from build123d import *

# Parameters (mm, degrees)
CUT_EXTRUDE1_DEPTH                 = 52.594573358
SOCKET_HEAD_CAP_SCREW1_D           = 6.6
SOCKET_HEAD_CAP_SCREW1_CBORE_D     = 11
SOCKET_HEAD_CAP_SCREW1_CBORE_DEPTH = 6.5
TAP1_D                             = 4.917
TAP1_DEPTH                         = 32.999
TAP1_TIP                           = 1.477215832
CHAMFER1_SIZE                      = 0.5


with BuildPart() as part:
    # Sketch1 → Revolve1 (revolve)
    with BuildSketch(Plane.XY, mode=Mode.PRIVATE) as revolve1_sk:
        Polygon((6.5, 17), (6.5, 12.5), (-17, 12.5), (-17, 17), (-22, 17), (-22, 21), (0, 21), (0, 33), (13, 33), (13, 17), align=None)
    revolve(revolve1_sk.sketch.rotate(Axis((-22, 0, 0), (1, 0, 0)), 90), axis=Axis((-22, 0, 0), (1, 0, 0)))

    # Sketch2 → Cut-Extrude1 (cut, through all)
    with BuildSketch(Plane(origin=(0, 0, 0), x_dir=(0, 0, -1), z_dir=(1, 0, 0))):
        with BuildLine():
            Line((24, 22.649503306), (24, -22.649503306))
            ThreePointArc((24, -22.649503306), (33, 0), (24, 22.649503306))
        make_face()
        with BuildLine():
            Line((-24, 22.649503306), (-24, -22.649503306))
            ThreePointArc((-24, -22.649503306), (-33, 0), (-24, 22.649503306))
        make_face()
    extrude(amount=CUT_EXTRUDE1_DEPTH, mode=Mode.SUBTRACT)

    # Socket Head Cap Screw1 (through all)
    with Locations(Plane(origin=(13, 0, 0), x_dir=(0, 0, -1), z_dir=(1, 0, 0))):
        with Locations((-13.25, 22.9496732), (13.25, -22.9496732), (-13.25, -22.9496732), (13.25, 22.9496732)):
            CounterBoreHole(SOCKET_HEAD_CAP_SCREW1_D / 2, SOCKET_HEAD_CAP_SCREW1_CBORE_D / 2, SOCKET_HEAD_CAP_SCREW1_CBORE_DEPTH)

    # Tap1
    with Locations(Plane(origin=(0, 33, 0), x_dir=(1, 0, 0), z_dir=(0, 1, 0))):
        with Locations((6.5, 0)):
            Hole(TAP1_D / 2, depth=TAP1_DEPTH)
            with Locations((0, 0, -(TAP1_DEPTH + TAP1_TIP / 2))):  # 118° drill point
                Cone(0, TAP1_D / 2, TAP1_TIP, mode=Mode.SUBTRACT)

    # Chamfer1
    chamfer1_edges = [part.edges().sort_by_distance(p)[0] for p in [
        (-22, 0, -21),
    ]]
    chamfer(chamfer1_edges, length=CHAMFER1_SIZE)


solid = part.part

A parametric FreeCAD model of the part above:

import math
import FreeCAD as App
import Part
import Sketcher
Q = App.Units.Quantity


def edges_at(feature, points):
    """Names of the edges that pass closest to the given points."""
    edges = feature.Shape.Edges
    near = lambda p: min(range(len(edges)), key=lambda i: edges[i].distToShape(Part.Vertex(*p))[0])
    return sorted({f"Edge{near(p) + 1}" for p in points})


def add_polygon(sketch, points):
    """Adds a closed chain of lines whose ends are joined by coincident constraints."""
    first, n = sketch.GeometryCount, len(points)
    for a, b in zip(points, points[1:] + points[:1]):
        sketch.addGeometry(Part.LineSegment(App.Vector(*a, 0), App.Vector(*b, 0)), False)
    for i in range(n):
        sketch.addConstraint(Sketcher.Constraint("Coincident", first + i, 2, first + (i + 1) % n, 1))

doc = App.newDocument("Part")
body = doc.addObject("PartDesign::Body", "Body")

# Sketch on XY plane
sketch1 = body.newObject("Sketcher::SketchObject", "Sketch")
sketch1.AttachmentSupport = (doc.getObject("XY_Plane"), [""])
sketch1.MapMode = "FlatFace"
add_polygon(sketch1, [(6.5, 12.5), (6.5, 17), (13, 17), (13, 33), (0, 33), (0, 21), (-22, 21), (-22, 17), (-17, 17), (-17, 12.5)])  # lines 0-9
sketch1.addConstraint([
    Sketcher.Constraint("Vertical", 0),
    Sketcher.Constraint("Horizontal", 1),
    Sketcher.Constraint("Vertical", 2),
    Sketcher.Constraint("Horizontal", 3),
    Sketcher.Constraint("Vertical", 4),
    Sketcher.Constraint("Horizontal", 5),
    Sketcher.Constraint("Vertical", 6),
    Sketcher.Constraint("Horizontal", 7),
    Sketcher.Constraint("Vertical", 8),
    Sketcher.Constraint("Horizontal", 9),
    Sketcher.Constraint("PointOnObject", 3, 2, -2),
    Sketcher.Constraint("Horizontal", 1, 2, 6, 2),
    Sketcher.Constraint("DistanceX", 3, 2, 3, 1, Q("13 mm")),
    Sketcher.Constraint("DistanceX", 5, 2, 5, 1, Q("22 mm")),
    Sketcher.Constraint("DistanceX", 7, 1, 7, 2, Q("5 mm")),
    Sketcher.Constraint("DistanceY", 2, 1, 2, 2, Q("16 mm")),
    Sketcher.Constraint("DistanceY", 4, 2, 4, 1, Q("12 mm")),
    Sketcher.Constraint("DistanceX", 1, 1, 1, 2, Q("6.5 mm")),
    Sketcher.Constraint("DistanceY", 0, 1, 0, 2, Q("4.5 mm")),
    Sketcher.Constraint("DistanceY", -1, 1, 0, 2, Q("17 mm")),
])
revolution = body.newObject("PartDesign::Revolution", "Revolution")
revolution.Profile = sketch1
revolution.ReferenceAxis = (sketch1, ["H_Axis"])
revolution.Angle = 360

# Sketch on YZ plane
sketch2 = body.newObject("Sketcher::SketchObject", "Sketch001")
sketch2.AttachmentSupport = (doc.getObject("YZ_Plane"), [""])
sketch2.MapMode = "FlatFace"
sketch2.addGeometry([
    Part.LineSegment(App.Vector(23, -24, 0), App.Vector(-23, -24, 0)),
    Part.ArcOfCircle(Part.Circle(App.Vector(0, 0, 0), App.Vector(0, 0, 1), 33), math.radians(-133), math.radians(-47)),
    Part.LineSegment(App.Vector(-23, 24, 0), App.Vector(23, 24, 0)),
    Part.ArcOfCircle(Part.Circle(App.Vector(0, 0, 0), App.Vector(0, 0, 1), 33), math.radians(47), math.radians(133)),
], False)
sketch2.addConstraint([
    Sketcher.Constraint("Coincident", 0, 1, 1, 2),
    Sketcher.Constraint("Coincident", 1, 1, 0, 2),
    Sketcher.Constraint("Coincident", 2, 1, 3, 2),
    Sketcher.Constraint("Coincident", 3, 1, 2, 2),
    Sketcher.Constraint("Horizontal", 0),
    Sketcher.Constraint("Horizontal", 2),
    Sketcher.Constraint("Coincident", 1, 3, -1, 1),
    Sketcher.Constraint("Coincident", 3, 3, -1, 1),
    Sketcher.Constraint("Equal", 1, 3),
    Sketcher.Constraint("Vertical", 1, 1, 2, 1),
    Sketcher.Constraint("Radius", 1, Q("33 mm")),
    Sketcher.Constraint("DistanceY", 0, 1, -1, 1, Q("24 mm")),
])
pocket1 = body.newObject("PartDesign::Pocket", "Pocket")
pocket1.Profile = sketch2
pocket1.Type = "ThroughAll"
pocket1.Reversed = True

# Sketch on YZ plane
sketch3 = body.newObject("Sketcher::SketchObject", "Sketch002")
sketch3.AttachmentSupport = (doc.getObject("YZ_Plane"), [""])
sketch3.MapMode = "FlatFace"
sketch3.AttachmentOffset = App.Placement(App.Vector(0, 0, 13), App.Rotation())
sketch3.addGeometry([
    Part.Circle(App.Vector(22.9, 13.2, 0), App.Vector(0, 0, 1), 3.3),
    Part.Circle(App.Vector(-22.9, -13.2, 0), App.Vector(0, 0, 1), 3.3),
    Part.Circle(App.Vector(-22.9, 13.2, 0), App.Vector(0, 0, 1), 3.3),
    Part.Circle(App.Vector(22.9, -13.2, 0), App.Vector(0, 0, 1), 3.3),
], False)
sketch3.addConstraint([
    Sketcher.Constraint("Equal", 0, 1),
    Sketcher.Constraint("Equal", 1, 2),
    Sketcher.Constraint("Equal", 2, 3),
    Sketcher.Constraint("Symmetric", 0, 3, 1, 3, -1, 1),
    Sketcher.Constraint("Symmetric", 2, 3, 3, 3, -1, 1),
    Sketcher.Constraint("Symmetric", 0, 3, 2, 3, -2),
    Sketcher.Constraint("Diameter", 0, Q("6.6 mm")),
    Sketcher.Constraint("DistanceY", 1, 3, 0, 3, Q("26.5 mm")),
    Sketcher.Constraint("DistanceX", -1, 1, 0, 3, Q("22.949673 mm")),
])
doc.recompute()
hole = body.newObject("PartDesign::Hole", "Hole")
hole.Profile = sketch3
hole.ThreadType = "None"
hole.Diameter = 6.6
hole.DepthType = "ThroughAll"
hole.HoleCutType = "Counterbore"
hole.HoleCutDiameter = 11
hole.HoleCutDepth = 6.5

# Sketch on XZ plane
sketch4 = body.newObject("Sketcher::SketchObject", "Sketch003")
sketch4.AttachmentSupport = (doc.getObject("XZ_Plane"), [""])
sketch4.MapMode = "FlatFace"
sketch4.AttachmentOffset = App.Placement(App.Vector(0, 0, -33), App.Rotation())
sketch4.addGeometry(Part.Circle(App.Vector(6.5, 0, 0), App.Vector(0, 0, 1), 2.5), False)
sketch4.addConstraint([
    Sketcher.Constraint("PointOnObject", 0, 3, -1),
    Sketcher.Constraint("Diameter", 0, Q("4.917 mm")),
    Sketcher.Constraint("DistanceX", -1, 1, 0, 3, Q("6.5 mm")),
])
doc.recompute()
hole2 = body.newObject("PartDesign::Hole", "Hole001")
hole2.Profile = sketch4
hole2.ThreadType = "None"
hole2.Diameter = 4.917
hole2.DepthType = "Dimension"
hole2.Depth = 32.999
hole2.DrillPoint = "Angled"
hole2.DrillPointAngle = 118
hole2.Reversed = True
doc.recompute()

chamfer = body.newObject("PartDesign::Chamfer", "Chamfer")
chamfer.Base = (hole2, edges_at(hole2, [(-22, 0, -21)]))
chamfer.Size = 0.5

doc.recompute()
